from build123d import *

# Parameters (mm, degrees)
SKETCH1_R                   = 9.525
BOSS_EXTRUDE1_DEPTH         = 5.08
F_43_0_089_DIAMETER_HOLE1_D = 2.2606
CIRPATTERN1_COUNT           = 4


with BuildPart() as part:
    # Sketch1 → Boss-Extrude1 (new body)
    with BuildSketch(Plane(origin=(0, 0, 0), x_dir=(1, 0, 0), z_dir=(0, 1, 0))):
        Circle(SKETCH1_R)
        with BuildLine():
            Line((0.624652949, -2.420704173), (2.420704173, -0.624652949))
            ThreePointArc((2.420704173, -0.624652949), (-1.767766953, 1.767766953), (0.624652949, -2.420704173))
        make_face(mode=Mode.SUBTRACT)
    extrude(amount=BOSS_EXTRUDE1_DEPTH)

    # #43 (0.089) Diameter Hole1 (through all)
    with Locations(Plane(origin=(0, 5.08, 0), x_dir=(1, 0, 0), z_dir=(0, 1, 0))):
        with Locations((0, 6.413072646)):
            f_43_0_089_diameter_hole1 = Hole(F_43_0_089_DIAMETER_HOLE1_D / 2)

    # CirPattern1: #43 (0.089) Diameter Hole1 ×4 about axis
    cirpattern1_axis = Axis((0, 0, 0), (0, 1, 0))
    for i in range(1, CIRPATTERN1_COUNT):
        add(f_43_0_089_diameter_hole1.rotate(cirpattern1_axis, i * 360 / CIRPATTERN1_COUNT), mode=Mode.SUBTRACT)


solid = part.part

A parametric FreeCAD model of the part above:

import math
import FreeCAD as App
import Part
import Sketcher
Q = App.Units.Quantity

doc = App.newDocument("Part")
body = doc.addObject("PartDesign::Body", "Body")

sketch1 = doc.addObject("Sketcher::SketchObject", "Sketch")
body.addObject(sketch1)
sketch1.AttachmentSupport = (doc.XZ_Plane, [""])
sketch1.MapMode = "FlatFace"
sketch1.addGeometry([
    Part.Circle(App.Vector(0, 0, 0), App.Vector(0, 0, 1), 9.5),
    Part.LineSegment(App.Vector(2.4, 0.6, 0), App.Vector(0.6, 2.4, 0)),
    Part.ArcOfCircle(Part.Circle(App.Vector(0, 0, 0), App.Vector(0, 0, 1), 2.5), math.radians(76), math.radians(374)),
], False)
sketch1.addConstraint([
    Sketcher.Constraint("Coincident", 1, 1, 2, 2),
    Sketcher.Constraint("Coincident", 2, 1, 1, 2),
    Sketcher.Constraint("Coincident", 0, 3, -1, 1),
    Sketcher.Constraint("Coincident", 2, 3, -1, 1),
    Sketcher.Constraint("Diameter", 0, Q("0.75 in")),
    Sketcher.Constraint("Angle", 1, Q("135 deg")),
    Sketcher.Constraint("Distance", 1, Q("0.1 in")),
    Sketcher.Constraint("Radius", 2, 2.5),
])
pad1 = doc.addObject("PartDesign::Pad", "Pad")
body.addObject(pad1)
pad1.Profile = sketch1
pad1.Length = Q("0.2 in")
pad1.Reversed = True

sketch2 = doc.addObject("Sketcher::SketchObject", "Sketch001")
body.addObject(sketch2)
sketch2.AttachmentSupport = (doc.XZ_Plane, [""])
sketch2.MapMode = "FlatFace"
sketch2.AttachmentOffset = App.Placement(App.Vector(0, 0, -0.2 * 25.4), App.Rotation())
sketch2.addGeometry(Part.Circle(App.Vector(0, -6.4, 0), App.Vector(0, 0, 1), 1.1), False)
sketch2.addConstraint([
    Sketcher.Constraint("PointOnObject", 0, 3, -2),
    Sketcher.Constraint("Diameter", 0, Q("0.089 in")),
    Sketcher.Constraint("DistanceY", 0, 3, -1, 1, 6.413073),
])
doc.recompute()
hole = doc.addObject("PartDesign::Hole", "Hole")
body.addObject(hole)
hole.Profile = sketch2
hole.ThreadType = "None"
hole.Diameter = Q("0.089 in")
hole.DepthType = "ThroughAll"
hole.Reversed = True
doc.recompute()

polarpattern = doc.addObject("PartDesign::PolarPattern", "PolarPattern")
body.addObject(polarpattern)
polarpattern.Originals = [hole]
polarpattern.Axis = (doc.Y_Axis, [""])
polarpattern.Angle = 360
polarpattern.Occurrences = 4
body.Tip = polarpattern

doc.recompute()
